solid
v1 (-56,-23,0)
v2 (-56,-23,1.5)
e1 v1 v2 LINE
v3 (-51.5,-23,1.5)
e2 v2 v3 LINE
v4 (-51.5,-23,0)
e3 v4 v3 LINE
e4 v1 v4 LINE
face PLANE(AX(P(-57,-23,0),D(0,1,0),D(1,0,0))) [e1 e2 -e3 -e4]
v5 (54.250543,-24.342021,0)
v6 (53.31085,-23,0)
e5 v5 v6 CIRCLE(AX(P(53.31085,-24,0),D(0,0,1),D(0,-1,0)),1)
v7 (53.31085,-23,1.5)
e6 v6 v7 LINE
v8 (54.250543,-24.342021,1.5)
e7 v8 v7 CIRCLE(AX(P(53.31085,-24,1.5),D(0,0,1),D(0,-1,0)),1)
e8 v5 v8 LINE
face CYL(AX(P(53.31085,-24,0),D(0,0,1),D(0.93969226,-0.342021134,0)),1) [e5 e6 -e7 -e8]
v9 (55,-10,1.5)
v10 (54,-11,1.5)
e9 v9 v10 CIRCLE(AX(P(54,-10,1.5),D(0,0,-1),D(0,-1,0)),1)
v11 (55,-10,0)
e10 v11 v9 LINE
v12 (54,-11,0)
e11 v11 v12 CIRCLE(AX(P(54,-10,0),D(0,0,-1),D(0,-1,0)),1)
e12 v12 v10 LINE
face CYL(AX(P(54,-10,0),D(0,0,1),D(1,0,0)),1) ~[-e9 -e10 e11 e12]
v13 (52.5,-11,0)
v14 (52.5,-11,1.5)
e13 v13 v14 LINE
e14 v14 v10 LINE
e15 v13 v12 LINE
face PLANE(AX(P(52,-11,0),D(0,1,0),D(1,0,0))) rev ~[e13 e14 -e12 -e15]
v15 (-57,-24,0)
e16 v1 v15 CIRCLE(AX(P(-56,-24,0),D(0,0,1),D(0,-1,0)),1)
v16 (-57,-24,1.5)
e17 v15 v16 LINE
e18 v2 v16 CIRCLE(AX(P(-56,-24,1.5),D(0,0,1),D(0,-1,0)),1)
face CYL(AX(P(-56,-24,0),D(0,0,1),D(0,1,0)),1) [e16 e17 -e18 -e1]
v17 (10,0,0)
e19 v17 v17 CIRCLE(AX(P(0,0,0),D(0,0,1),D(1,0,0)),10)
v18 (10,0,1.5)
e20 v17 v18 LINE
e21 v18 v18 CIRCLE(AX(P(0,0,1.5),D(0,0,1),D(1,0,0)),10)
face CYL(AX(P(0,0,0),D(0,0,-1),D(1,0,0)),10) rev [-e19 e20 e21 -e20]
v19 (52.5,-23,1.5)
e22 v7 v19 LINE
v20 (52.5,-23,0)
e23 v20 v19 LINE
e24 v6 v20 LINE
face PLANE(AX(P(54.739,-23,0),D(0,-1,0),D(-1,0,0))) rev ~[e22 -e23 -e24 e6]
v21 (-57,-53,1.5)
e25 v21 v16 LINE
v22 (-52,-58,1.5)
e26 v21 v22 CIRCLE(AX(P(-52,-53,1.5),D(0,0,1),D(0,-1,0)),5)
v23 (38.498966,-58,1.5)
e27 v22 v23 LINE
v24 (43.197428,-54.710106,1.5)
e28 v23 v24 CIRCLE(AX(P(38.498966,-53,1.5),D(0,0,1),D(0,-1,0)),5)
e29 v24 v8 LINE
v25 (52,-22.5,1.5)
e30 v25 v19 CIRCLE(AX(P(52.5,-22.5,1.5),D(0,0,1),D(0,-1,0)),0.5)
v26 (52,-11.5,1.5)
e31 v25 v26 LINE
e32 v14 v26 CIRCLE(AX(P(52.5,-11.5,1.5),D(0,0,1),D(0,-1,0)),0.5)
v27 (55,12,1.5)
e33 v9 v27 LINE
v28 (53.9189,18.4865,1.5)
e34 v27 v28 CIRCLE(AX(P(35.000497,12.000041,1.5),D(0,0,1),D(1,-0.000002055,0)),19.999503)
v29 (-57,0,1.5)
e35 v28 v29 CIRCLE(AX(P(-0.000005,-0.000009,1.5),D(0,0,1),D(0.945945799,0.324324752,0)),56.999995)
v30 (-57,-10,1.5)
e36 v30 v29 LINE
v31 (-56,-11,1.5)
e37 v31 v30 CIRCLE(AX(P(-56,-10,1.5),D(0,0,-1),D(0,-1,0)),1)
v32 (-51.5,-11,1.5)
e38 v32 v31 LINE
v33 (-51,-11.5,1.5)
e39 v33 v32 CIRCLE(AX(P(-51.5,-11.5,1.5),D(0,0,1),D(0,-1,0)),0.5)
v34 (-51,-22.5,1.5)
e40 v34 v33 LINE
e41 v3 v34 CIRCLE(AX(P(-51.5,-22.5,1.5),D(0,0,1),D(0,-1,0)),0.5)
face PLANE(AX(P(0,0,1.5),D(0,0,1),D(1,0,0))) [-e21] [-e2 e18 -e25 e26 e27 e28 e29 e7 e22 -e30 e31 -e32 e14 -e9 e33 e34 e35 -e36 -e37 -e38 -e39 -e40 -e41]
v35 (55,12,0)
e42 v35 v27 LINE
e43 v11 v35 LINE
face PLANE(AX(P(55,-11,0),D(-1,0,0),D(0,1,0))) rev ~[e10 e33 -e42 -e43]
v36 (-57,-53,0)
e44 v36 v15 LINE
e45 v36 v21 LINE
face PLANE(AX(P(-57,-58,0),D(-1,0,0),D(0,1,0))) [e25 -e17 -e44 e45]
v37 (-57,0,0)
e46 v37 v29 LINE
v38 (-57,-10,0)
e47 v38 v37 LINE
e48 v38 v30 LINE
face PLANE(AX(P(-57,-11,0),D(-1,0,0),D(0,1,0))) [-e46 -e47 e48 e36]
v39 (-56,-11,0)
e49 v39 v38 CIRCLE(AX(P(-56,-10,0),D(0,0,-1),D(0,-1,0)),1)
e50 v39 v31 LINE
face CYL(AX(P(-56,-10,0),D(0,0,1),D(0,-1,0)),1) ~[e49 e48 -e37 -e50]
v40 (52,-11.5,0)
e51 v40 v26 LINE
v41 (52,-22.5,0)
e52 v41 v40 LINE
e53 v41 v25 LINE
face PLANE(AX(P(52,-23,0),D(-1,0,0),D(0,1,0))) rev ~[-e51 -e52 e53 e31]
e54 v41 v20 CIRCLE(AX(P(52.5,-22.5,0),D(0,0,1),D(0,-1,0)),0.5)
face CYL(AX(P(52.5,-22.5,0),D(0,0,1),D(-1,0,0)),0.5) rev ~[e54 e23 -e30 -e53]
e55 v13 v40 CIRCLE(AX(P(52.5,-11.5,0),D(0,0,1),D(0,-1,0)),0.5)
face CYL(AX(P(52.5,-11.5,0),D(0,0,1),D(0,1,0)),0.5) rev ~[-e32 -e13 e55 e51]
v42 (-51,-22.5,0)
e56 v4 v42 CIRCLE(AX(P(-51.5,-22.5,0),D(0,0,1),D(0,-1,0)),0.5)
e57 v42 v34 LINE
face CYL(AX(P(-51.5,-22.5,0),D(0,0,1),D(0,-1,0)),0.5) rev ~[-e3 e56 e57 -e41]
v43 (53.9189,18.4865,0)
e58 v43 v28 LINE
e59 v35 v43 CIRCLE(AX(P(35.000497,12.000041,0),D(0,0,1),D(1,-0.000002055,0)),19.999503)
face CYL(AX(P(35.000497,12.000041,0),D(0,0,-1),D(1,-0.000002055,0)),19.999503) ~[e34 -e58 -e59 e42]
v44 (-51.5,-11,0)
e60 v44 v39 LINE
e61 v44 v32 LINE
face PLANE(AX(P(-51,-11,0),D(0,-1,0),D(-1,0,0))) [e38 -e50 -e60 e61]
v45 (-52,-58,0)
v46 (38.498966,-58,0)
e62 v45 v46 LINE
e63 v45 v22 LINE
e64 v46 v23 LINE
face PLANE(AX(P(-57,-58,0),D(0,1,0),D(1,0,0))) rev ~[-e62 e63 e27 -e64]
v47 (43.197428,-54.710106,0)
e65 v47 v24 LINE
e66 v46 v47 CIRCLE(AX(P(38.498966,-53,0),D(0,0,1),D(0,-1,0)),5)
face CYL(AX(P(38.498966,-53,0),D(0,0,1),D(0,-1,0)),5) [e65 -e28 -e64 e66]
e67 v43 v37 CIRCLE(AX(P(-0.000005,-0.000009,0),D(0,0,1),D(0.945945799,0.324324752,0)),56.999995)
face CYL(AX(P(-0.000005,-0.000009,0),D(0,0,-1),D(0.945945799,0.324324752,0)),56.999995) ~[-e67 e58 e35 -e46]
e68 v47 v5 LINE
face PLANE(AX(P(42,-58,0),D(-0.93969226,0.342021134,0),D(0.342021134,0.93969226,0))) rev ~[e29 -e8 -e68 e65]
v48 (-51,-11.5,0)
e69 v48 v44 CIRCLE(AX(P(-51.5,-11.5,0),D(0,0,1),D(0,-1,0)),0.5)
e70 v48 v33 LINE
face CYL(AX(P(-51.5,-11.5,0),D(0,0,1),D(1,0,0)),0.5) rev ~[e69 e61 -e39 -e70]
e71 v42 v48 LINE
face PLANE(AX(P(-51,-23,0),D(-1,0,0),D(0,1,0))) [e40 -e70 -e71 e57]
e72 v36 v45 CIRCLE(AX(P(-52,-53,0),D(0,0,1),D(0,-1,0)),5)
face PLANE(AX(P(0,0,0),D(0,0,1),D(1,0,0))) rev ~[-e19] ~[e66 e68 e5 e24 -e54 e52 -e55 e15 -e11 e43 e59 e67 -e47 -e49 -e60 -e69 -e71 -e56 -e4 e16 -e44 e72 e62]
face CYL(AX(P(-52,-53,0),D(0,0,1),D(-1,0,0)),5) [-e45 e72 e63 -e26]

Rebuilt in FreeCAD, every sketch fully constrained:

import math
import FreeCAD as App
import Part
import Sketcher
from FreeCAD import Vector
Q = App.Units.Quantity


def edges_at(feature, points):
    """Names of the edges that pass closest to the given points."""
    edges = feature.Shape.Edges
    near = lambda p: min(range(len(edges)), key=lambda i: edges[i].distToShape(Part.Vertex(*p))[0])
    return sorted({f"Edge{near(p) + 1}" for p in points})

doc = App.newDocument("Part")
params = doc.addObject("Spreadsheet::Sheet", "Params")
for row, (alias, value) in enumerate([
    ("sketch1_diameter", "20 mm"),
    ("sketch1_radius", "20 mm"),
    ("sketch1_radius2", "57 mm"),
    ("sketch1_width", "99 mm"),
    ("sketch1_width2", "3 mm"),
    ("pad1_length", "1.5 mm"),
    ("fillet_radius", "0.5 mm"),
    ("fillet2_radius", "1 mm"),
    ("fillet3_radius", "5 mm"),
], start=1):
    params.set(f"A{row}", alias)
    params.set(f"B{row}", "=" + value)
    params.setAlias(f"B{row}", alias)

body = doc.addObject("PartDesign::Body", "Body")

# Sketch on XY plane
sketch1 = body.newObject("Sketcher::SketchObject", "Sketch")
sketch1.AttachmentSupport = (doc.getObject("XY_Plane"), [""])
sketch1.MapMode = "FlatFace"
sketch1.addGeometry([
    Part.LineSegment(Vector(-57, -23, 0), Vector(-57, -58, 0)),  # 0
    Part.LineSegment(Vector(-57, -58, 0), Vector(42, -58, 0)),  # 1
    Part.LineSegment(Vector(42, -58, 0), Vector(54.7, -23, 0)),  # 2
    Part.LineSegment(Vector(54.7, -23, 0), Vector(52, -23, 0)),  # 3
    Part.LineSegment(Vector(52, -23, 0), Vector(52, -11, 0)),  # 4
    Part.LineSegment(Vector(52, -11, 0), Vector(55, -11, 0)),  # 5
    Part.LineSegment(Vector(55, -11, 0), Vector(55, 12, 0)),  # 6
    Part.ArcOfCircle(Part.Circle(Vector(35, 12, 0), Vector(0, 0, 1), 20), math.radians(0), math.radians(18.92)),  # 7
    Part.ArcOfCircle(Part.Circle(Vector(0, 0, 0), Vector(0, 0, 1), 57), math.radians(19), math.radians(180)),  # 8
    Part.LineSegment(Vector(-57, 0, 0), Vector(-57, -11, 0)),  # 9
    Part.LineSegment(Vector(-57, -11, 0), Vector(-51, -11, 0)),  # 10
    Part.LineSegment(Vector(-51, -11, 0), Vector(-51, -23, 0)),  # 11
    Part.LineSegment(Vector(-51, -23, 0), Vector(-57, -23, 0)),  # 12
    Part.Circle(Vector(0, 0, 0), Vector(0, 0, 1), 10),  # 13
], False)
sketch1.addConstraint([
    Sketcher.Constraint("Coincident", 0, 2, 1, 1),
    Sketcher.Constraint("Coincident", 1, 2, 2, 1),
    Sketcher.Constraint("Coincident", 2, 2, 3, 1),
    Sketcher.Constraint("Coincident", 3, 2, 4, 1),
    Sketcher.Constraint("Coincident", 4, 2, 5, 1),
    Sketcher.Constraint("Coincident", 5, 2, 6, 1),
    Sketcher.Constraint("Tangent", 6, 2, 7, 1),
    Sketcher.Constraint("Tangent", 7, 2, 8, 1),
    Sketcher.Constraint("Tangent", 8, 2, 9, 1),
    Sketcher.Constraint("Coincident", 9, 2, 10, 1),
    Sketcher.Constraint("Coincident", 10, 2, 11, 1),
    Sketcher.Constraint("Coincident", 11, 2, 12, 1),
    Sketcher.Constraint("Coincident", 12, 2, 0, 1),
    Sketcher.Constraint("Vertical", 0),
    Sketcher.Constraint("Horizontal", 1),
    Sketcher.Constraint("Horizontal", 3),
    Sketcher.Constraint("Vertical", 4),
    Sketcher.Constraint("Horizontal", 5),
    Sketcher.Constraint("Vertical", 6),
    Sketcher.Constraint("Vertical", 9),
    Sketcher.Constraint("Horizontal", 10),
    Sketcher.Constraint("Vertical", 11),
    Sketcher.Constraint("Horizontal", 12),
    Sketcher.Constraint("Coincident", 8, 3, -1, 1),
    Sketcher.Constraint("Coincident", 13, 3, -1, 1),
    Sketcher.Constraint("Horizontal", 5, 2, 9, 2),
    Sketcher.Constraint("Horizontal", 3, 2, 11, 2),
    Sketcher.Constraint("Vertical", 0, 2, 8, 2),
    Sketcher.Constraint("Diameter", 13, Q("20 mm")),
    Sketcher.Constraint("Radius", 7, Q("20 mm")),
    Sketcher.Constraint("Radius", 8, Q("57 mm")),
    Sketcher.Constraint("DistanceX", 1, 1, 1, 2, Q("99 mm")),
    Sketcher.Constraint("DistanceX", 5, 1, 5, 2, Q("3 mm")),
    Sketcher.Constraint("DistanceX", 10, 1, 10, 2, Q("6 mm")),
    Sketcher.Constraint("DistanceY", 4, 1, 4, 2, Q("12 mm")),
    Sketcher.Constraint("DistanceY", -1, 1, 7, 3, Q("12 mm")),
    Sketcher.Constraint("DistanceY", 0, 2, -1, 1, Q("58 mm")),
    Sketcher.Constraint("DistanceY", 1, 2, 4, 2, Q("47 mm")),
    Sketcher.Constraint("Angle", 2, Q("70 deg")),
])
sketch1.setExpression("Constraints[28]", "Params.sketch1_diameter")
sketch1.setExpression("Constraints[29]", "Params.sketch1_radius")
sketch1.setExpression("Constraints[30]", "Params.sketch1_radius2")
sketch1.setExpression("Constraints[31]", "Params.sketch1_width")
sketch1.setExpression("Constraints[32]", "Params.sketch1_width2")
pad1 = body.newObject("PartDesign::Pad", "Pad")
pad1.Profile = sketch1
pad1.setExpression("Length", "Params.pad1_length")
doc.recompute()

fillet = body.newObject("PartDesign::Fillet", "Fillet")
fillet.Base = (pad1, edges_at(pad1, [
    (52, -23, 0.75),
    (52, -11, 0.75),
    (-51, -11, 0.75),
    (-51, -23, 0.75),
]))
fillet.setExpression("Radius", "Params.fillet_radius")
doc.recompute()

fillet2 = body.newObject("PartDesign::Fillet", "Fillet001")
fillet2.Base = (fillet, edges_at(fillet, [
    (-57, -11, 0.75),
    (-57, -23, 0.75),
    (55, -11, 0.75),
    (54.739, -23, 0.75),
]))
fillet2.setExpression("Radius", "Params.fillet2_radius")
doc.recompute()

fillet3 = body.newObject("PartDesign::Fillet", "Fillet002")
fillet3.Base = (fillet2, edges_at(fillet2, [(42, -58, 0.75), (-57, -58, 0.75)]))
fillet3.setExpression("Radius", "Params.fillet3_radius")

doc.recompute()
